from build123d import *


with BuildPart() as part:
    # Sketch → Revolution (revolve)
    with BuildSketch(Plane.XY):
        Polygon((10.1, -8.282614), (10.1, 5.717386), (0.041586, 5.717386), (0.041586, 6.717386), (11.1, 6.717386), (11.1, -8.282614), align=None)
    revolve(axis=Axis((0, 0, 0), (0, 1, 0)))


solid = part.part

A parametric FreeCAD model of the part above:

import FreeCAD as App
import Part
import Sketcher

V = App.Vector
Q = App.Units.Quantity

doc = App.newDocument("Part")
params = doc.addObject("Spreadsheet::Sheet", "Params")
for row, (alias, value) in enumerate([
    ("sketch1_width", "1 mm"),
    ("sketch1_height", "14 mm"),
    ("revolution_angle", "360 deg"),
], start=1):
    params.set(f"A{row}", alias)
    params.set(f"B{row}", "=" + value)
    params.setAlias(f"B{row}", alias)

body = doc.addObject("PartDesign::Body", "Body")

sketch1 = body.newObject("Sketcher::SketchObject", "Sketch")
sketch1.AttachmentSupport = (doc.getObject("XY_Plane"), [""])
sketch1.MapMode = "FlatFace"
sketch1.addGeometry([
    Part.LineSegment(V(10.1, 5.7, 0), V(10.1, -8.3, 0)),
    Part.LineSegment(V(10.1, -8.3, 0), V(11.1, -8.3, 0)),
    Part.LineSegment(V(11.1, -8.3, 0), V(11.1, 6.7, 0)),
    Part.LineSegment(V(11.1, 6.7, 0), V(0, 6.7, 0)),
    Part.LineSegment(V(0, 6.7, 0), V(0, 5.7, 0)),
    Part.LineSegment(V(0, 5.7, 0), V(10.1, 5.7, 0)),
], False)
sketch1.addConstraint([
    Sketcher.Constraint("Coincident", 0, 2, 1, 1),
    Sketcher.Constraint("Coincident", 1, 2, 2, 1),
    Sketcher.Constraint("Coincident", 2, 2, 3, 1),
    Sketcher.Constraint("Coincident", 3, 2, 4, 1),
    Sketcher.Constraint("Coincident", 4, 2, 5, 1),
    Sketcher.Constraint("Coincident", 5, 2, 0, 1),
    Sketcher.Constraint("Vertical", 0),
    Sketcher.Constraint("Horizontal", 1),
    Sketcher.Constraint("Vertical", 2),
    Sketcher.Constraint("Horizontal", 3),
    Sketcher.Constraint("Vertical", 4),
    Sketcher.Constraint("Horizontal", 5),
    Sketcher.Constraint("Equal", 1, 4),
    Sketcher.Constraint("DistanceX", 1, 1, 1, 2, Q("1 mm")),
    Sketcher.Constraint("DistanceY", 0, 2, 0, 1, Q("14 mm")),
    Sketcher.Constraint("DistanceX", -1, 1, 0, 2, Q("10.1 mm")),
    Sketcher.Constraint("DistanceX", 3, 2, 3, 1, Q("11.058414 mm")),
    Sketcher.Constraint("DistanceY", 0, 2, -1, 1, Q("8.282614 mm")),
])
sketch1.setExpression("Constraints[13]", "Params.sketch1_width")
sketch1.setExpression("Constraints[14]", "Params.sketch1_height")
revolution = body.newObject("PartDesign::Revolution", "Revolution")
revolution.Profile = sketch1
revolution.ReferenceAxis = (sketch1, ["V_Axis"])
revolution.setExpression("Angle", "Params.revolution_angle")

doc.recompute()
